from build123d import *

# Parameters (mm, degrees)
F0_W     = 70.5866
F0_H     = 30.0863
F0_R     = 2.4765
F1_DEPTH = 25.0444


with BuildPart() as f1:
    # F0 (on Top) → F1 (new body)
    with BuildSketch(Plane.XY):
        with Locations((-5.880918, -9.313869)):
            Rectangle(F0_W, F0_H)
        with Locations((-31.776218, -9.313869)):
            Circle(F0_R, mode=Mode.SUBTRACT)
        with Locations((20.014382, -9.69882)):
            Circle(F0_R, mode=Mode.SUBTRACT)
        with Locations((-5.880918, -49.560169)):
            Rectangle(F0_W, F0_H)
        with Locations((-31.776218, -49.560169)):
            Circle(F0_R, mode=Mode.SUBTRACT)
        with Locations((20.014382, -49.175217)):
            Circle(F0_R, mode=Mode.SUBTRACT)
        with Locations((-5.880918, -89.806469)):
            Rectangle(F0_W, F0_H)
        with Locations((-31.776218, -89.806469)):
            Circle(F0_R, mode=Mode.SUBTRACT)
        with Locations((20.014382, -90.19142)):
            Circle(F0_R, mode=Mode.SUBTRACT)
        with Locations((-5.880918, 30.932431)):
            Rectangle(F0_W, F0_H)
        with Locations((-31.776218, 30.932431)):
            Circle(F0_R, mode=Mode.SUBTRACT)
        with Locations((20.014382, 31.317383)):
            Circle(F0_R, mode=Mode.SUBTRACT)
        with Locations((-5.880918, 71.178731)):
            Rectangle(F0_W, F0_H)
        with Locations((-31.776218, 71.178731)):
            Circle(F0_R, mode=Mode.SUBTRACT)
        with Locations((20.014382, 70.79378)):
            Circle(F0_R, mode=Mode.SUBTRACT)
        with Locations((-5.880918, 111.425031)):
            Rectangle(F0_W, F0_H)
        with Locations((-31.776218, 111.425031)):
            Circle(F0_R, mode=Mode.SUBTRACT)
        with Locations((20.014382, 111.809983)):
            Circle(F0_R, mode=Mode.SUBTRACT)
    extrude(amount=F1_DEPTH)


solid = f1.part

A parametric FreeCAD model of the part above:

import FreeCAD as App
import Part
import Sketcher

V = App.Vector
Q = App.Units.Quantity


def add_polygon(sketch, points):
    """Adds a closed chain of lines whose ends are joined by coincident constraints."""
    first, n = sketch.GeometryCount, len(points)
    for a, b in zip(points, points[1:] + points[:1]):
        sketch.addGeometry(Part.LineSegment(App.Vector(*a, 0), App.Vector(*b, 0)), False)
    for i in range(n):
        sketch.addConstraint(Sketcher.Constraint("Coincident", first + i, 2, first + (i + 1) % n, 1))

doc = App.newDocument("Part")
body = doc.addObject("PartDesign::Body", "Body")
body.AllowCompound = True

# Sketch on XY plane
sketch1 = body.newObject("Sketcher::SketchObject", "Sketch")
sketch1.AttachmentSupport = (doc.getObject("XY_Plane"), [""])
sketch1.MapMode = "FlatFace"
add_polygon(sketch1, [(-41.2, 5.7), (-41.2, -24.4), (29.4, -24.4), (29.4, 5.7)])  # lines 0-3
sketch1.addGeometry(Part.Circle(V(20, -9.7, 0), V(0, 0, 1), 2.5), False)  # 4
sketch1.addGeometry(Part.Circle(V(-31.8, -9.3, 0), V(0, 0, 1), 2.5), False)  # 5
add_polygon(sketch1, [(-41.2, -34.5), (-41.2, -64.6), (29.4, -64.6), (29.4, -34.5)])  # lines 6-9
sketch1.addGeometry(Part.Circle(V(-31.8, -49.6, 0), V(0, 0, 1), 2.5), False)  # 10
sketch1.addGeometry(Part.Circle(V(20, -49.2, 0), V(0, 0, 1), 2.5), False)  # 11
add_polygon(sketch1, [(-41.2, -74.8), (-41.2, -104.8), (29.4, -104.8), (29.4, -74.8)])  # lines 12-15
sketch1.addGeometry(Part.Circle(V(20, -90.2, 0), V(0, 0, 1), 2.5), False)  # 16
sketch1.addGeometry(Part.Circle(V(-31.8, -89.8, 0), V(0, 0, 1), 2.5), False)  # 17
add_polygon(sketch1, [(-41.2, 46), (-41.2, 15.9), (29.4, 15.9), (29.4, 46)])  # lines 18-21
sketch1.addGeometry(Part.Circle(V(-31.8, 30.9, 0), V(0, 0, 1), 2.5), False)  # 22
sketch1.addGeometry(Part.Circle(V(20, 31.3, 0), V(0, 0, 1), 2.5), False)  # 23
add_polygon(sketch1, [(-41.2, 86.2), (-41.2, 56.1), (29.4, 56.1), (29.4, 86.2)])  # lines 24-27
sketch1.addGeometry(Part.Circle(V(20, 70.8, 0), V(0, 0, 1), 2.5), False)  # 28
sketch1.addGeometry(Part.Circle(V(-31.8, 71.2, 0), V(0, 0, 1), 2.5), False)  # 29
add_polygon(sketch1, [(-41.2, 126.5), (-41.2, 96.4), (29.4, 96.4), (29.4, 126.5)])  # lines 30-33
sketch1.addGeometry(Part.Circle(V(-31.8, 111.4, 0), V(0, 0, 1), 2.5), False)  # 34
sketch1.addGeometry(Part.Circle(V(20, 111.8, 0), V(0, 0, 1), 2.5), False)  # 35
sketch1.addConstraint(Sketcher.Constraint("Vertical", 0))
sketch1.addConstraint(Sketcher.Constraint("Horizontal", 1))
sketch1.addConstraint(Sketcher.Constraint("Vertical", 2))
sketch1.addConstraint(Sketcher.Constraint("Horizontal", 3))
sketch1.addConstraint(Sketcher.Constraint("Vertical", 6))
sketch1.addConstraint(Sketcher.Constraint("Horizontal", 7))
sketch1.addConstraint(Sketcher.Constraint("Vertical", 8))
sketch1.addConstraint(Sketcher.Constraint("Horizontal", 9))
sketch1.addConstraint(Sketcher.Constraint("Vertical", 12))
sketch1.addConstraint(Sketcher.Constraint("Horizontal", 13))
sketch1.addConstraint(Sketcher.Constraint("Vertical", 14))
sketch1.addConstraint(Sketcher.Constraint("Horizontal", 15))
sketch1.addConstraint(Sketcher.Constraint("Vertical", 18))
sketch1.addConstraint(Sketcher.Constraint("Horizontal", 19))
sketch1.addConstraint(Sketcher.Constraint("Vertical", 20))
sketch1.addConstraint(Sketcher.Constraint("Horizontal", 21))
sketch1.addConstraint(Sketcher.Constraint("Vertical", 24))
sketch1.addConstraint(Sketcher.Constraint("Horizontal", 25))
sketch1.addConstraint(Sketcher.Constraint("Vertical", 26))
sketch1.addConstraint(Sketcher.Constraint("Horizontal", 27))
sketch1.addConstraint(Sketcher.Constraint("Vertical", 30))
sketch1.addConstraint(Sketcher.Constraint("Horizontal", 31))
sketch1.addConstraint(Sketcher.Constraint("Vertical", 32))
sketch1.addConstraint(Sketcher.Constraint("Horizontal", 33))
sketch1.addConstraint(Sketcher.Constraint("Equal", 4, 5))
sketch1.addConstraint(Sketcher.Constraint("Equal", 5, 10))
sketch1.addConstraint(Sketcher.Constraint("Equal", 10, 11))
sketch1.addConstraint(Sketcher.Constraint("Equal", 11, 16))
sketch1.addConstraint(Sketcher.Constraint("Equal", 16, 17))
sketch1.addConstraint(Sketcher.Constraint("Equal", 17, 22))
sketch1.addConstraint(Sketcher.Constraint("Equal", 22, 23))
sketch1.addConstraint(Sketcher.Constraint("Equal", 23, 28))
sketch1.addConstraint(Sketcher.Constraint("Equal", 28, 29))
sketch1.addConstraint(Sketcher.Constraint("Equal", 29, 34))
sketch1.addConstraint(Sketcher.Constraint("Equal", 34, 35))
sketch1.addConstraint(Sketcher.Constraint("Vertical", 5, 3, 10, 3))
sketch1.addConstraint(Sketcher.Constraint("Vertical", 4, 3, 11, 3))
sketch1.addConstraint(Sketcher.Constraint("Vertical", 11, 3, 16, 3))
sketch1.addConstraint(Sketcher.Constraint("Vertical", 10, 3, 17, 3))
sketch1.addConstraint(Sketcher.Constraint("Vertical", 17, 3, 22, 3))
sketch1.addConstraint(Sketcher.Constraint("Vertical", 16, 3, 23, 3))
sketch1.addConstraint(Sketcher.Constraint("Vertical", 23, 3, 28, 3))
sketch1.addConstraint(Sketcher.Constraint("Vertical", 22, 3, 29, 3))
sketch1.addConstraint(Sketcher.Constraint("Vertical", 29, 3, 34, 3))
sketch1.addConstraint(Sketcher.Constraint("Vertical", 28, 3, 35, 3))
sketch1.addConstraint(Sketcher.Constraint("Vertical", 3, 2, 6, 2))
sketch1.addConstraint(Sketcher.Constraint("Vertical", 2, 2, 7, 2))
sketch1.addConstraint(Sketcher.Constraint("Vertical", 9, 2, 12, 2))
sketch1.addConstraint(Sketcher.Constraint("Vertical", 8, 2, 13, 2))
sketch1.addConstraint(Sketcher.Constraint("Vertical", 15, 2, 18, 2))
sketch1.addConstraint(Sketcher.Constraint("Vertical", 14, 2, 19, 2))
sketch1.addConstraint(Sketcher.Constraint("Vertical", 21, 2, 24, 2))
sketch1.addConstraint(Sketcher.Constraint("Vertical", 20, 2, 25, 2))
sketch1.addConstraint(Sketcher.Constraint("Vertical", 27, 2, 30, 2))
sketch1.addConstraint(Sketcher.Constraint("Vertical", 26, 2, 31, 2))
sketch1.addConstraint(Sketcher.Constraint("Equal", 2, 6))
sketch1.addConstraint(Sketcher.Constraint("Equal", 8, 12))
sketch1.addConstraint(Sketcher.Constraint("Equal", 14, 18))
sketch1.addConstraint(Sketcher.Constraint("Equal", 20, 24))
sketch1.addConstraint(Sketcher.Constraint("Equal", 26, 30))
sketch1.addConstraint(Sketcher.Constraint("Diameter", 4, Q("0.195 in")))
sketch1.addConstraint(Sketcher.Constraint("DistanceY", 8, 2, 1, 2, Q("0.4 in")))
sketch1.addConstraint(Sketcher.Constraint("DistanceY", 14, 2, 7, 2, Q("0.4 in")))
sketch1.addConstraint(Sketcher.Constraint("DistanceY", 3, 2, 18, 2, Q("0.4 in")))
sketch1.addConstraint(Sketcher.Constraint("DistanceY", 21, 2, 24, 2, Q("0.4 in")))
sketch1.addConstraint(Sketcher.Constraint("DistanceY", 27, 2, 30, 2, Q("0.4 in")))
sketch1.addConstraint(Sketcher.Constraint("DistanceX", 1, 1, 1, 2, Q("2.779 in")))
sketch1.addConstraint(Sketcher.Constraint("DistanceX", 0, 2, 5, 3, Q("0.37 in")))
sketch1.addConstraint(Sketcher.Constraint("DistanceX", 4, 3, 1, 2, Q("0.37 in")))
sketch1.addConstraint(Sketcher.Constraint("DistanceY", 0, 2, 0, 1, Q("1.1845 in")))
sketch1.addConstraint(Sketcher.Constraint("DistanceY", 16, 3, 4, 3, Q("3.169 in")))
sketch1.addConstraint(Sketcher.Constraint("DistanceY", 17, 3, 5, 3, Q("3.169 in")))
sketch1.addConstraint(Sketcher.Constraint("DistanceY", 10, 3, 22, 3, Q("3.169 in")))
sketch1.addConstraint(Sketcher.Constraint("DistanceY", 11, 3, 23, 3, Q("3.169 in")))
sketch1.addConstraint(Sketcher.Constraint("DistanceY", 4, 3, 28, 3, Q("3.169 in")))
sketch1.addConstraint(Sketcher.Constraint("DistanceY", 5, 3, 29, 3, Q("3.169 in")))
sketch1.addConstraint(Sketcher.Constraint("DistanceY", 22, 3, 34, 3, Q("3.169 in")))
sketch1.addConstraint(Sketcher.Constraint("DistanceY", 23, 3, 35, 3, Q("3.169 in")))
sketch1.addConstraint(Sketcher.Constraint("DistanceY", 10, 3, 5, 3, Q("1.5845 in")))
sketch1.addConstraint(Sketcher.Constraint("DistanceY", 0, 2, 4, 3, 14.658199))
sketch1.addConstraint(Sketcher.Constraint("DistanceY", 11, 3, 0, 2, 24.818198))
sketch1.addConstraint(Sketcher.Constraint("DistanceY", 4, 3, -1, 1, 9.69882))
sketch1.addConstraint(Sketcher.Constraint("DistanceX", 5, 3, -1, 1, 31.776218))
sketch1.addConstraint(Sketcher.Constraint("DistanceY", 5, 3, -1, 1, 9.313869))
pad1 = body.newObject("PartDesign::Pad", "Pad")
pad1.Profile = sketch1
pad1.Length = Q("0.986 in")

doc.recompute()
